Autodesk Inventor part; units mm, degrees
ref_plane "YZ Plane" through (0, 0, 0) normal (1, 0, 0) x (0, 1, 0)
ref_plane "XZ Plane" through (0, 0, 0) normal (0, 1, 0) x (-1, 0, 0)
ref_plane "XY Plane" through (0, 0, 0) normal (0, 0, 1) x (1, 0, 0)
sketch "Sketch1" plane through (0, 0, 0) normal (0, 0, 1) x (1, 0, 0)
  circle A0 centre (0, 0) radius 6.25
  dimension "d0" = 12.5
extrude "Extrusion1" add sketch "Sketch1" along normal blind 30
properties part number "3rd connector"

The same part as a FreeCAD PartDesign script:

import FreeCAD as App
import Part
import Sketcher

V = App.Vector
Q = App.Units.Quantity

doc = App.newDocument("Part")
body = doc.addObject("PartDesign::Body", "Body")

sketch1 = doc.addObject("Sketcher::SketchObject", "Sketch")
body.addObject(sketch1)
sketch1.AttachmentSupport = (doc.XY_Plane, [""])
sketch1.MapMode = "FlatFace"
sketch1.addGeometry(Part.Circle(V(0, 0, 0), V(0, 0, 1), 6), False)
sketch1.addConstraint([
    Sketcher.Constraint("Coincident", 0, 3, -1, 1),
    Sketcher.Constraint("Diameter", 0, Q("12.5 mm")),
])
pad1 = doc.addObject("PartDesign::Pad", "Pad")
body.addObject(pad1)
pad1.Profile = sketch1
pad1.Length = 30

doc.recompute()
